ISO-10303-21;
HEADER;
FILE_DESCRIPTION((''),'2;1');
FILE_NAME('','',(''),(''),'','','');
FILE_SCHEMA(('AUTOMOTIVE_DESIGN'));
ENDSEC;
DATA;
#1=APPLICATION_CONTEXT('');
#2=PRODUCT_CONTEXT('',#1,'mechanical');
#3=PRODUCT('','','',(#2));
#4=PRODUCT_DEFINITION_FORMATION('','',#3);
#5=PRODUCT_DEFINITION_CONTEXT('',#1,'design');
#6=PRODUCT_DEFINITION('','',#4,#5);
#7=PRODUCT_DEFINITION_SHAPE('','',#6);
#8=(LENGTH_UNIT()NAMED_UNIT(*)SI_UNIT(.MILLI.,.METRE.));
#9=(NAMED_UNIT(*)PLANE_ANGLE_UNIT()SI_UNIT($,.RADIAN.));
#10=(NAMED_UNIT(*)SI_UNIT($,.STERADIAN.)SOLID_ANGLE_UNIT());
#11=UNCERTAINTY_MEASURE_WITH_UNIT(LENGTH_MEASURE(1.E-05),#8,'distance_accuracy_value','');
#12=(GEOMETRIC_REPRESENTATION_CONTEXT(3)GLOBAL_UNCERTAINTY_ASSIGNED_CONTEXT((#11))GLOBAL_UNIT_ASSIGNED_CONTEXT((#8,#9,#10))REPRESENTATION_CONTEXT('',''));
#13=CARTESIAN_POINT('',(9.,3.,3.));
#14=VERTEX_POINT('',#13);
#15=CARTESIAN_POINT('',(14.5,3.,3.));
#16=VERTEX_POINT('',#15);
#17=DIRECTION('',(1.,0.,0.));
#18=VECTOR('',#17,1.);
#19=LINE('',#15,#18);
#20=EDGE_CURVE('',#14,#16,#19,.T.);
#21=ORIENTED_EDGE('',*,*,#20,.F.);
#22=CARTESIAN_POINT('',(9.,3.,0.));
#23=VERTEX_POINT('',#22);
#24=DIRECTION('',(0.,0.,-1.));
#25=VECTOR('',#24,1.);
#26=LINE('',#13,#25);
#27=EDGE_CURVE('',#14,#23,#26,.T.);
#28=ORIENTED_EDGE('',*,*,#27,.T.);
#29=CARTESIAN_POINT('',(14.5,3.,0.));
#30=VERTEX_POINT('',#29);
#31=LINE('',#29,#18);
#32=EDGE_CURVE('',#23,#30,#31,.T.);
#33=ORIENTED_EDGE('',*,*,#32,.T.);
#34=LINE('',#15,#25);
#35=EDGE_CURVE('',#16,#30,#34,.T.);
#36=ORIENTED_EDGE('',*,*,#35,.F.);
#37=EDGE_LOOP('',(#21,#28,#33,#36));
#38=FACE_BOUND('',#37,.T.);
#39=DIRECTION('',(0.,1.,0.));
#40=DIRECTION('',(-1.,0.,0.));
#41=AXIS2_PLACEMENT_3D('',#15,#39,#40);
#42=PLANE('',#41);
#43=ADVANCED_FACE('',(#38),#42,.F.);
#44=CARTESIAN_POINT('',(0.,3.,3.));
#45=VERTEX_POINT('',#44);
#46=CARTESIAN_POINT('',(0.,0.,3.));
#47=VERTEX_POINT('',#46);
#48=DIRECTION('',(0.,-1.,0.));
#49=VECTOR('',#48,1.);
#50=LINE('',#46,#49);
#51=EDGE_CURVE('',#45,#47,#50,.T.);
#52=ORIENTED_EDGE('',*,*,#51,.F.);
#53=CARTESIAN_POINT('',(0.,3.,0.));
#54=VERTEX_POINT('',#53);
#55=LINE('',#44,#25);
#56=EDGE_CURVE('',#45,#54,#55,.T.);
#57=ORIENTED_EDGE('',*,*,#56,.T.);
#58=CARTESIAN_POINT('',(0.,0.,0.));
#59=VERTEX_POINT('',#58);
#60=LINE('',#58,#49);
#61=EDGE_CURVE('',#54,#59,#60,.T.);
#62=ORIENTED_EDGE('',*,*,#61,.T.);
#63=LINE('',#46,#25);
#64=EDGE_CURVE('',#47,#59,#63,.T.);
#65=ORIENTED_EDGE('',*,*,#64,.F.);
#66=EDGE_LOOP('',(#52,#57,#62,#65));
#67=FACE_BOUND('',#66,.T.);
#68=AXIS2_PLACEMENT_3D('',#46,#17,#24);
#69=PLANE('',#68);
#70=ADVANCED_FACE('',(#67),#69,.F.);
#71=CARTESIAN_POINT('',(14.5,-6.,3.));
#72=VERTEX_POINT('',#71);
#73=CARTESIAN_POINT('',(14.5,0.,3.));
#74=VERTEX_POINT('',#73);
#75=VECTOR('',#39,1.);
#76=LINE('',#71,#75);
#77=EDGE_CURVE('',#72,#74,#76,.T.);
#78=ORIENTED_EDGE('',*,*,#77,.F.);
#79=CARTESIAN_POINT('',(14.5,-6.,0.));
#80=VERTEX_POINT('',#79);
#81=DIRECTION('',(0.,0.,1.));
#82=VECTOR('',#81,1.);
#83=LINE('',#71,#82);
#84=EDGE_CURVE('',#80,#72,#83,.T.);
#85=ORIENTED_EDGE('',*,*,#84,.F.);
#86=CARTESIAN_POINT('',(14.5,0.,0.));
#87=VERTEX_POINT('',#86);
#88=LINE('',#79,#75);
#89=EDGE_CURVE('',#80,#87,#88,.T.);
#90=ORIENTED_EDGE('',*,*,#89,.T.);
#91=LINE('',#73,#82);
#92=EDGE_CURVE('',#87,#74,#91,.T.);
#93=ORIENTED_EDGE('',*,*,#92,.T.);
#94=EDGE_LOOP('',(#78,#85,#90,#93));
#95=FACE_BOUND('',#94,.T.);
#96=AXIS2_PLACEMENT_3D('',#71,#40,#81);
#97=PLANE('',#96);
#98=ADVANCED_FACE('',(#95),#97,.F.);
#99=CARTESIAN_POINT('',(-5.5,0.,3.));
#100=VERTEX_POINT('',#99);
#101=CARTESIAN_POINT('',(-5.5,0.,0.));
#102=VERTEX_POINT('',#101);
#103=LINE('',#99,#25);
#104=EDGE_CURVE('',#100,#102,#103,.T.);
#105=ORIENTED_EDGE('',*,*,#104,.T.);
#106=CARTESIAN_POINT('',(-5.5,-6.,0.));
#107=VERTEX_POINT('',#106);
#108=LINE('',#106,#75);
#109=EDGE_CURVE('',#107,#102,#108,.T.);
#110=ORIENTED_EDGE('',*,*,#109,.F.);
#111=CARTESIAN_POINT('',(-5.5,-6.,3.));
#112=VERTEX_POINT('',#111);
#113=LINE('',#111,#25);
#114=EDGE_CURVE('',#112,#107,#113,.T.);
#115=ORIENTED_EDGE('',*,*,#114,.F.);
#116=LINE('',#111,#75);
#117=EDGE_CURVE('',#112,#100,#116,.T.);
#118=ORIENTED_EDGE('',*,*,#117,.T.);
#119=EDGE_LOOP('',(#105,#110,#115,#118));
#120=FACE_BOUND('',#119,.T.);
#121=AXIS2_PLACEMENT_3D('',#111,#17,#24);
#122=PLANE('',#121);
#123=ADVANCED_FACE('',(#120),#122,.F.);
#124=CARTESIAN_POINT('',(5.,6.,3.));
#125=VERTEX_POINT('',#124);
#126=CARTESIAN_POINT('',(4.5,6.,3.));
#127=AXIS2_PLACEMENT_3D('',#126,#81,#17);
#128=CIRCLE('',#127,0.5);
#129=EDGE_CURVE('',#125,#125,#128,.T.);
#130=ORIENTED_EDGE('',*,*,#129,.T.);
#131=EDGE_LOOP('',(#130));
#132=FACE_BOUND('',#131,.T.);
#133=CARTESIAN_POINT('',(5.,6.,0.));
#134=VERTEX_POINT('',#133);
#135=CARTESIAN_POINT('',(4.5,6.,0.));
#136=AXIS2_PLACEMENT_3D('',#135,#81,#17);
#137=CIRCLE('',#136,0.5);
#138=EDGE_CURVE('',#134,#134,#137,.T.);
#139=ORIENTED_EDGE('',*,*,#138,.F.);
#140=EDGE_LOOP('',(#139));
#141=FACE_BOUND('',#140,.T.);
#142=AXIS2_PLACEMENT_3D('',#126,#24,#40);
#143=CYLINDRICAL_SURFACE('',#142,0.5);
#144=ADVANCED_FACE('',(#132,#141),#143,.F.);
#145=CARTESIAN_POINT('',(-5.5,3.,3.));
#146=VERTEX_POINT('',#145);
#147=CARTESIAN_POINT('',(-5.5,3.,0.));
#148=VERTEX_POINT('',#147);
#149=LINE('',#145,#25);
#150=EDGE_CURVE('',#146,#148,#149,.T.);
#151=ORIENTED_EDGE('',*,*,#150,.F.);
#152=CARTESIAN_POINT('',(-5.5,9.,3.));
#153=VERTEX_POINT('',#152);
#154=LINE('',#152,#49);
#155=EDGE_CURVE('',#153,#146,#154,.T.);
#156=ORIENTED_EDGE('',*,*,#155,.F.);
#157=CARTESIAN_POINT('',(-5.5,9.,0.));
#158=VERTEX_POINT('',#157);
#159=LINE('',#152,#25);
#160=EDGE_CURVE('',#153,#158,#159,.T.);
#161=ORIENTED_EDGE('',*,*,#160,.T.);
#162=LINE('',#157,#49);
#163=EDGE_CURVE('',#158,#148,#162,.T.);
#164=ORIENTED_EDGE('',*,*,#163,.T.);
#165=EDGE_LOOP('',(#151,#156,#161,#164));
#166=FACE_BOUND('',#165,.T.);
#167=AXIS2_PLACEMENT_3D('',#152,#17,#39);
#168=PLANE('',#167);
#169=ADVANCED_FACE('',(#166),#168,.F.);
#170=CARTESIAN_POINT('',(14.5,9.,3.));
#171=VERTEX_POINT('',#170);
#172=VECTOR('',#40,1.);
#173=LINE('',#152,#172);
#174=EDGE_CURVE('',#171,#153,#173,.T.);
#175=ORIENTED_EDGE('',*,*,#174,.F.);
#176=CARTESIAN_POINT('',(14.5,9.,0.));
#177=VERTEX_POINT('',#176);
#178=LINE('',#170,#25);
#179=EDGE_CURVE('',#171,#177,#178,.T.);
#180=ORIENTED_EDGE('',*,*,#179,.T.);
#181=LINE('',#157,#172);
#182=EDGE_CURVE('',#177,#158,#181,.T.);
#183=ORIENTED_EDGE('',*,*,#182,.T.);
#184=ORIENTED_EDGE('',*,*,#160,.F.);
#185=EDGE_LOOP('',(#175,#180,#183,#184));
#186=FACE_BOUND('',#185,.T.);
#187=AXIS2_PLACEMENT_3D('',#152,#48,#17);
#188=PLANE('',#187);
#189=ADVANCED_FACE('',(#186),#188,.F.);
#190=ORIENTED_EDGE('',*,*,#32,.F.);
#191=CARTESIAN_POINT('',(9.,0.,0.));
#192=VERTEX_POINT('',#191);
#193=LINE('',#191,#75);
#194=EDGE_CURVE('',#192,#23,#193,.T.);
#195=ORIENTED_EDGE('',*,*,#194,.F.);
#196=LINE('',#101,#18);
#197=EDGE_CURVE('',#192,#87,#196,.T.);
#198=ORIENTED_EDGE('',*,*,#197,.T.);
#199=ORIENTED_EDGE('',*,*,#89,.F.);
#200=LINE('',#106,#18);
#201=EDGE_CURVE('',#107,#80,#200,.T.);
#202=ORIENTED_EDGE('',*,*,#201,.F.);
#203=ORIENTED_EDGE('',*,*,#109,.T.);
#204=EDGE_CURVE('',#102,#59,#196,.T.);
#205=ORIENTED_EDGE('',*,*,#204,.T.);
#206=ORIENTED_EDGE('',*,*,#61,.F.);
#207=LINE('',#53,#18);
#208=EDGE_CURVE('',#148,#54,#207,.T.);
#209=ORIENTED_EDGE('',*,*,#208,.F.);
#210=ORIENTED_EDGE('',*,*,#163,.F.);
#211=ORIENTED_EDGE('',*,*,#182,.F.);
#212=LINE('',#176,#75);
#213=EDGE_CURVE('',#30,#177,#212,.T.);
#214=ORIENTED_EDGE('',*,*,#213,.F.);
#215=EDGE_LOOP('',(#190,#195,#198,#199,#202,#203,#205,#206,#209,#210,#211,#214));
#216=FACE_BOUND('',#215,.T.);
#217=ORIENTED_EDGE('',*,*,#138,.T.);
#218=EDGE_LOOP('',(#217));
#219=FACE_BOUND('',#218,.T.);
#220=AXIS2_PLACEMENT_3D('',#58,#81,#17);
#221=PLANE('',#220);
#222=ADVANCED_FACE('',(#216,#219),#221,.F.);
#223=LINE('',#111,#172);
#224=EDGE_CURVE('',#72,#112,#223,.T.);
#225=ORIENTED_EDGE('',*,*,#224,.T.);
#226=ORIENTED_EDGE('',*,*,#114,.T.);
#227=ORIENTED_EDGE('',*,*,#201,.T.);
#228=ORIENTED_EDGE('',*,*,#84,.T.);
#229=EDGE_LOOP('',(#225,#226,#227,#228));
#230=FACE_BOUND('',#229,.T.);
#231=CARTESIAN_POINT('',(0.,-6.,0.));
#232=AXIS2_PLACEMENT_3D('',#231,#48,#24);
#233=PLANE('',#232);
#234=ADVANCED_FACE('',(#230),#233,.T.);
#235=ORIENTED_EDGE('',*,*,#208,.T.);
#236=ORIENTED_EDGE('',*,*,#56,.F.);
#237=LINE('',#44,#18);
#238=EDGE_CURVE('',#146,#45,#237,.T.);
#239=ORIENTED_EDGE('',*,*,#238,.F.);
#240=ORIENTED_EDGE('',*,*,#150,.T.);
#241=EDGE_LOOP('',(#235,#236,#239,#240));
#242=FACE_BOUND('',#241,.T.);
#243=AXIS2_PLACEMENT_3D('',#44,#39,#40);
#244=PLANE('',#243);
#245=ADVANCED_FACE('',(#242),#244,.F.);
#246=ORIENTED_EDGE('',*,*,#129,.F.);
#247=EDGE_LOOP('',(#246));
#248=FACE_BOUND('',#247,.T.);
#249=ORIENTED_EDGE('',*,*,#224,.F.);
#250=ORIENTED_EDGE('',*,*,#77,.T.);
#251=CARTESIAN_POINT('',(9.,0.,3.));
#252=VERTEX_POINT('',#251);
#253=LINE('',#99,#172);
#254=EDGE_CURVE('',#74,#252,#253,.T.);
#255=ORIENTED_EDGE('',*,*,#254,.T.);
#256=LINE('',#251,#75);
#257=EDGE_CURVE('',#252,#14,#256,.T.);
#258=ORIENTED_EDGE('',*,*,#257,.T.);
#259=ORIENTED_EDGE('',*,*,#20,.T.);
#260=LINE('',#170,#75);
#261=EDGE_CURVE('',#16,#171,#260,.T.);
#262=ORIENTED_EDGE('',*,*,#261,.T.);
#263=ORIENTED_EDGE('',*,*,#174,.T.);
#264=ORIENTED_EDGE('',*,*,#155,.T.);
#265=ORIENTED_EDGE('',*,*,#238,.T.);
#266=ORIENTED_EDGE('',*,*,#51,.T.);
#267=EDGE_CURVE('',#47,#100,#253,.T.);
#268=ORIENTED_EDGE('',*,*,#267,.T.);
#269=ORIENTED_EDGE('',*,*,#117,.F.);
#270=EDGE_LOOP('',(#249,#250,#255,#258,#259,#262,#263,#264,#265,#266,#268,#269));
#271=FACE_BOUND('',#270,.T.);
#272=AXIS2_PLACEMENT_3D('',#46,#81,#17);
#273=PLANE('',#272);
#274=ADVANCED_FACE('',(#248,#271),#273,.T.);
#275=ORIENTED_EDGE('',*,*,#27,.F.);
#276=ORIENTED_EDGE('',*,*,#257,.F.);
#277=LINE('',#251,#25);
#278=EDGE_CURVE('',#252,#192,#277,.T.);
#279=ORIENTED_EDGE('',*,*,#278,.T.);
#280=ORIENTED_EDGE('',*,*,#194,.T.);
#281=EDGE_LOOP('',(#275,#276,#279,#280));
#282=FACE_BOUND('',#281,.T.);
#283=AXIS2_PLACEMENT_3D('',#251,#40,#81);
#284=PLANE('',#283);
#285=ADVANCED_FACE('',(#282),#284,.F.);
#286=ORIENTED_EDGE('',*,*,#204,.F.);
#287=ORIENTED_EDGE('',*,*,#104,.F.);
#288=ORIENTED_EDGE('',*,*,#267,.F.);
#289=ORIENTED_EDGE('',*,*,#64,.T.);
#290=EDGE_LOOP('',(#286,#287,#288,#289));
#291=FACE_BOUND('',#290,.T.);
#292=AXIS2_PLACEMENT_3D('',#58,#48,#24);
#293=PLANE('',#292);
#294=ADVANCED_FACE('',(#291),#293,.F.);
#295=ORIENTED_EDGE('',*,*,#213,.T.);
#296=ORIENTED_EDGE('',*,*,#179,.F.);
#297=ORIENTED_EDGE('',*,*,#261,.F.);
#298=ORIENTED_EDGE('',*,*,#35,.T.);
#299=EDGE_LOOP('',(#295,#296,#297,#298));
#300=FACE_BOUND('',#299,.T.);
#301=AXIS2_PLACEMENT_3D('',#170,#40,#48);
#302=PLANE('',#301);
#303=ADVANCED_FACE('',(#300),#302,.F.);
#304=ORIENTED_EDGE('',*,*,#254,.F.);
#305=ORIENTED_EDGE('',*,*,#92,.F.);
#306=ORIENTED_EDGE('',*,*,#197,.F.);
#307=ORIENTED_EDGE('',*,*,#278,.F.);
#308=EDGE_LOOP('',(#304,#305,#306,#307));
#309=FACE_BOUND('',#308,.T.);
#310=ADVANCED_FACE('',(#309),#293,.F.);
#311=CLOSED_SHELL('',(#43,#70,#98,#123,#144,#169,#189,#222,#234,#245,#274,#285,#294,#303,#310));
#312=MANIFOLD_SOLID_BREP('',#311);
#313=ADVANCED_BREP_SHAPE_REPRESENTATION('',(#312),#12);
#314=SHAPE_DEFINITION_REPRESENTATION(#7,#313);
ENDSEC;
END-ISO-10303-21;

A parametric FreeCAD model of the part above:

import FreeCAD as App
import Part
import Sketcher

doc = App.newDocument("Part")
body = doc.addObject("PartDesign::Body", "Body")

# Sketch on XY plane
sketch1 = body.newObject("Sketcher::SketchObject", "Sketch")
sketch1.AttachmentSupport = (doc.getObject("XY_Plane"), [""])
sketch1.MapMode = "FlatFace"
sketch1.addGeometry(Part.LineSegment(App.Vector(0, 0, 0), App.Vector(9, 0, 0)), False)
sketch1.addGeometry(Part.LineSegment(App.Vector(9, 0, 0), App.Vector(9, 3, 0)), False)
sketch1.addGeometry(Part.LineSegment(App.Vector(9, 3, 0), App.Vector(14.5, 3, 0)), False)
sketch1.addGeometry(Part.LineSegment(App.Vector(14.5, 3, 0), App.Vector(14.5, 9, 0)), False)
sketch1.addGeometry(Part.LineSegment(App.Vector(14.5, 9, 0), App.Vector(-5.5, 9, 0)), False)
sketch1.addGeometry(Part.LineSegment(App.Vector(-5.5, 9, 0), App.Vector(-5.5, 3, 0)), False)
sketch1.addGeometry(Part.LineSegment(App.Vector(-5.5, 3, 0), App.Vector(0, 3, 0)), False)
sketch1.addGeometry(Part.LineSegment(App.Vector(0, 3, 0), App.Vector(0, 0, 0)), False)
sketch1.addGeometry(Part.Circle(App.Vector(4.5, 6, 0), App.Vector(0, 0, 1), 0.5), False)
sketch1.addConstraint(Sketcher.Constraint("Coincident", 0, 2, 1, 1))
sketch1.addConstraint(Sketcher.Constraint("Coincident", 1, 2, 2, 1))
sketch1.addConstraint(Sketcher.Constraint("Coincident", 2, 2, 3, 1))
sketch1.addConstraint(Sketcher.Constraint("Coincident", 3, 2, 4, 1))
sketch1.addConstraint(Sketcher.Constraint("Coincident", 4, 2, 5, 1))
sketch1.addConstraint(Sketcher.Constraint("Coincident", 5, 2, 6, 1))
sketch1.addConstraint(Sketcher.Constraint("Coincident", 6, 2, 7, 1))
sketch1.addConstraint(Sketcher.Constraint("Coincident", 7, 2, 0, 1))
sketch1.addConstraint(Sketcher.Constraint("Horizontal", 0))
sketch1.addConstraint(Sketcher.Constraint("Vertical", 1))
sketch1.addConstraint(Sketcher.Constraint("Horizontal", 2))
sketch1.addConstraint(Sketcher.Constraint("Vertical", 3))
sketch1.addConstraint(Sketcher.Constraint("Horizontal", 4))
sketch1.addConstraint(Sketcher.Constraint("Vertical", 5))
sketch1.addConstraint(Sketcher.Constraint("Horizontal", 6))
sketch1.addConstraint(Sketcher.Constraint("Vertical", 7))
sketch1.addConstraint(Sketcher.Constraint("Coincident", 7, 2, -1, 1))
sketch1.addConstraint(Sketcher.Constraint("Horizontal", 2, 2, 5, 2))
sketch1.addConstraint(Sketcher.Constraint("Equal", 2, 6))
sketch1.addConstraint(Sketcher.Constraint("Diameter", 8, 1.0))
sketch1.addConstraint(Sketcher.Constraint("DistanceX", 0, 1, 0, 2, 9.0))
sketch1.addConstraint(Sketcher.Constraint("DistanceX", 4, 2, 4, 1, 20.0))
sketch1.addConstraint(Sketcher.Constraint("DistanceY", 1, 1, 1, 2, 3.0))
sketch1.addConstraint(Sketcher.Constraint("DistanceY", 3, 1, 3, 2, 6.0))
sketch1.addConstraint(Sketcher.Constraint("DistanceY", -1, 1, 8, 3, 6.0))
sketch1.addConstraint(Sketcher.Constraint("DistanceX", 8, 3, 2, 2, 10.0))
pad1 = body.newObject("PartDesign::Pad", "Pad")
pad1.Profile = sketch1
pad1.Length = 3

# Sketch on XZ plane
sketch2 = body.newObject("Sketcher::SketchObject", "Sketch001")
sketch2.AttachmentSupport = (doc.getObject("XZ_Plane"), [""])
sketch2.MapMode = "FlatFace"
sketch2.addGeometry(Part.LineSegment(App.Vector(-5.5, 3, 0), App.Vector(-5.5, 0, 0)), False)
sketch2.addGeometry(Part.LineSegment(App.Vector(-5.5, 0, 0), App.Vector(14.5, 0, 0)), False)
sketch2.addGeometry(Part.LineSegment(App.Vector(14.5, 0, 0), App.Vector(14.5, 3, 0)), False)
sketch2.addGeometry(Part.LineSegment(App.Vector(14.5, 3, 0), App.Vector(-5.5, 3, 0)), False)
sketch2.addConstraint(Sketcher.Constraint("Coincident", 0, 2, 1, 1))
sketch2.addConstraint(Sketcher.Constraint("Coincident", 1, 2, 2, 1))
sketch2.addConstraint(Sketcher.Constraint("Coincident", 2, 2, 3, 1))
sketch2.addConstraint(Sketcher.Constraint("Coincident", 3, 2, 0, 1))
sketch2.addConstraint(Sketcher.Constraint("Vertical", 0))
sketch2.addConstraint(Sketcher.Constraint("Horizontal", 1))
sketch2.addConstraint(Sketcher.Constraint("Vertical", 2))
sketch2.addConstraint(Sketcher.Constraint("Horizontal", 3))
sketch2.addConstraint(Sketcher.Constraint("PointOnObject", 0, 2, -1))
sketch2.addConstraint(Sketcher.Constraint("DistanceX", 1, 1, 1, 2, 20.0))
sketch2.addConstraint(Sketcher.Constraint("DistanceY", 0, 2, 0, 1, 3.0))
sketch2.addConstraint(Sketcher.Constraint("DistanceX", 0, 2, -1, 1, 5.5))
pad2 = body.newObject("PartDesign::Pad", "Pad001")
pad2.Profile = sketch2
pad2.Length = 6

doc.recompute()
